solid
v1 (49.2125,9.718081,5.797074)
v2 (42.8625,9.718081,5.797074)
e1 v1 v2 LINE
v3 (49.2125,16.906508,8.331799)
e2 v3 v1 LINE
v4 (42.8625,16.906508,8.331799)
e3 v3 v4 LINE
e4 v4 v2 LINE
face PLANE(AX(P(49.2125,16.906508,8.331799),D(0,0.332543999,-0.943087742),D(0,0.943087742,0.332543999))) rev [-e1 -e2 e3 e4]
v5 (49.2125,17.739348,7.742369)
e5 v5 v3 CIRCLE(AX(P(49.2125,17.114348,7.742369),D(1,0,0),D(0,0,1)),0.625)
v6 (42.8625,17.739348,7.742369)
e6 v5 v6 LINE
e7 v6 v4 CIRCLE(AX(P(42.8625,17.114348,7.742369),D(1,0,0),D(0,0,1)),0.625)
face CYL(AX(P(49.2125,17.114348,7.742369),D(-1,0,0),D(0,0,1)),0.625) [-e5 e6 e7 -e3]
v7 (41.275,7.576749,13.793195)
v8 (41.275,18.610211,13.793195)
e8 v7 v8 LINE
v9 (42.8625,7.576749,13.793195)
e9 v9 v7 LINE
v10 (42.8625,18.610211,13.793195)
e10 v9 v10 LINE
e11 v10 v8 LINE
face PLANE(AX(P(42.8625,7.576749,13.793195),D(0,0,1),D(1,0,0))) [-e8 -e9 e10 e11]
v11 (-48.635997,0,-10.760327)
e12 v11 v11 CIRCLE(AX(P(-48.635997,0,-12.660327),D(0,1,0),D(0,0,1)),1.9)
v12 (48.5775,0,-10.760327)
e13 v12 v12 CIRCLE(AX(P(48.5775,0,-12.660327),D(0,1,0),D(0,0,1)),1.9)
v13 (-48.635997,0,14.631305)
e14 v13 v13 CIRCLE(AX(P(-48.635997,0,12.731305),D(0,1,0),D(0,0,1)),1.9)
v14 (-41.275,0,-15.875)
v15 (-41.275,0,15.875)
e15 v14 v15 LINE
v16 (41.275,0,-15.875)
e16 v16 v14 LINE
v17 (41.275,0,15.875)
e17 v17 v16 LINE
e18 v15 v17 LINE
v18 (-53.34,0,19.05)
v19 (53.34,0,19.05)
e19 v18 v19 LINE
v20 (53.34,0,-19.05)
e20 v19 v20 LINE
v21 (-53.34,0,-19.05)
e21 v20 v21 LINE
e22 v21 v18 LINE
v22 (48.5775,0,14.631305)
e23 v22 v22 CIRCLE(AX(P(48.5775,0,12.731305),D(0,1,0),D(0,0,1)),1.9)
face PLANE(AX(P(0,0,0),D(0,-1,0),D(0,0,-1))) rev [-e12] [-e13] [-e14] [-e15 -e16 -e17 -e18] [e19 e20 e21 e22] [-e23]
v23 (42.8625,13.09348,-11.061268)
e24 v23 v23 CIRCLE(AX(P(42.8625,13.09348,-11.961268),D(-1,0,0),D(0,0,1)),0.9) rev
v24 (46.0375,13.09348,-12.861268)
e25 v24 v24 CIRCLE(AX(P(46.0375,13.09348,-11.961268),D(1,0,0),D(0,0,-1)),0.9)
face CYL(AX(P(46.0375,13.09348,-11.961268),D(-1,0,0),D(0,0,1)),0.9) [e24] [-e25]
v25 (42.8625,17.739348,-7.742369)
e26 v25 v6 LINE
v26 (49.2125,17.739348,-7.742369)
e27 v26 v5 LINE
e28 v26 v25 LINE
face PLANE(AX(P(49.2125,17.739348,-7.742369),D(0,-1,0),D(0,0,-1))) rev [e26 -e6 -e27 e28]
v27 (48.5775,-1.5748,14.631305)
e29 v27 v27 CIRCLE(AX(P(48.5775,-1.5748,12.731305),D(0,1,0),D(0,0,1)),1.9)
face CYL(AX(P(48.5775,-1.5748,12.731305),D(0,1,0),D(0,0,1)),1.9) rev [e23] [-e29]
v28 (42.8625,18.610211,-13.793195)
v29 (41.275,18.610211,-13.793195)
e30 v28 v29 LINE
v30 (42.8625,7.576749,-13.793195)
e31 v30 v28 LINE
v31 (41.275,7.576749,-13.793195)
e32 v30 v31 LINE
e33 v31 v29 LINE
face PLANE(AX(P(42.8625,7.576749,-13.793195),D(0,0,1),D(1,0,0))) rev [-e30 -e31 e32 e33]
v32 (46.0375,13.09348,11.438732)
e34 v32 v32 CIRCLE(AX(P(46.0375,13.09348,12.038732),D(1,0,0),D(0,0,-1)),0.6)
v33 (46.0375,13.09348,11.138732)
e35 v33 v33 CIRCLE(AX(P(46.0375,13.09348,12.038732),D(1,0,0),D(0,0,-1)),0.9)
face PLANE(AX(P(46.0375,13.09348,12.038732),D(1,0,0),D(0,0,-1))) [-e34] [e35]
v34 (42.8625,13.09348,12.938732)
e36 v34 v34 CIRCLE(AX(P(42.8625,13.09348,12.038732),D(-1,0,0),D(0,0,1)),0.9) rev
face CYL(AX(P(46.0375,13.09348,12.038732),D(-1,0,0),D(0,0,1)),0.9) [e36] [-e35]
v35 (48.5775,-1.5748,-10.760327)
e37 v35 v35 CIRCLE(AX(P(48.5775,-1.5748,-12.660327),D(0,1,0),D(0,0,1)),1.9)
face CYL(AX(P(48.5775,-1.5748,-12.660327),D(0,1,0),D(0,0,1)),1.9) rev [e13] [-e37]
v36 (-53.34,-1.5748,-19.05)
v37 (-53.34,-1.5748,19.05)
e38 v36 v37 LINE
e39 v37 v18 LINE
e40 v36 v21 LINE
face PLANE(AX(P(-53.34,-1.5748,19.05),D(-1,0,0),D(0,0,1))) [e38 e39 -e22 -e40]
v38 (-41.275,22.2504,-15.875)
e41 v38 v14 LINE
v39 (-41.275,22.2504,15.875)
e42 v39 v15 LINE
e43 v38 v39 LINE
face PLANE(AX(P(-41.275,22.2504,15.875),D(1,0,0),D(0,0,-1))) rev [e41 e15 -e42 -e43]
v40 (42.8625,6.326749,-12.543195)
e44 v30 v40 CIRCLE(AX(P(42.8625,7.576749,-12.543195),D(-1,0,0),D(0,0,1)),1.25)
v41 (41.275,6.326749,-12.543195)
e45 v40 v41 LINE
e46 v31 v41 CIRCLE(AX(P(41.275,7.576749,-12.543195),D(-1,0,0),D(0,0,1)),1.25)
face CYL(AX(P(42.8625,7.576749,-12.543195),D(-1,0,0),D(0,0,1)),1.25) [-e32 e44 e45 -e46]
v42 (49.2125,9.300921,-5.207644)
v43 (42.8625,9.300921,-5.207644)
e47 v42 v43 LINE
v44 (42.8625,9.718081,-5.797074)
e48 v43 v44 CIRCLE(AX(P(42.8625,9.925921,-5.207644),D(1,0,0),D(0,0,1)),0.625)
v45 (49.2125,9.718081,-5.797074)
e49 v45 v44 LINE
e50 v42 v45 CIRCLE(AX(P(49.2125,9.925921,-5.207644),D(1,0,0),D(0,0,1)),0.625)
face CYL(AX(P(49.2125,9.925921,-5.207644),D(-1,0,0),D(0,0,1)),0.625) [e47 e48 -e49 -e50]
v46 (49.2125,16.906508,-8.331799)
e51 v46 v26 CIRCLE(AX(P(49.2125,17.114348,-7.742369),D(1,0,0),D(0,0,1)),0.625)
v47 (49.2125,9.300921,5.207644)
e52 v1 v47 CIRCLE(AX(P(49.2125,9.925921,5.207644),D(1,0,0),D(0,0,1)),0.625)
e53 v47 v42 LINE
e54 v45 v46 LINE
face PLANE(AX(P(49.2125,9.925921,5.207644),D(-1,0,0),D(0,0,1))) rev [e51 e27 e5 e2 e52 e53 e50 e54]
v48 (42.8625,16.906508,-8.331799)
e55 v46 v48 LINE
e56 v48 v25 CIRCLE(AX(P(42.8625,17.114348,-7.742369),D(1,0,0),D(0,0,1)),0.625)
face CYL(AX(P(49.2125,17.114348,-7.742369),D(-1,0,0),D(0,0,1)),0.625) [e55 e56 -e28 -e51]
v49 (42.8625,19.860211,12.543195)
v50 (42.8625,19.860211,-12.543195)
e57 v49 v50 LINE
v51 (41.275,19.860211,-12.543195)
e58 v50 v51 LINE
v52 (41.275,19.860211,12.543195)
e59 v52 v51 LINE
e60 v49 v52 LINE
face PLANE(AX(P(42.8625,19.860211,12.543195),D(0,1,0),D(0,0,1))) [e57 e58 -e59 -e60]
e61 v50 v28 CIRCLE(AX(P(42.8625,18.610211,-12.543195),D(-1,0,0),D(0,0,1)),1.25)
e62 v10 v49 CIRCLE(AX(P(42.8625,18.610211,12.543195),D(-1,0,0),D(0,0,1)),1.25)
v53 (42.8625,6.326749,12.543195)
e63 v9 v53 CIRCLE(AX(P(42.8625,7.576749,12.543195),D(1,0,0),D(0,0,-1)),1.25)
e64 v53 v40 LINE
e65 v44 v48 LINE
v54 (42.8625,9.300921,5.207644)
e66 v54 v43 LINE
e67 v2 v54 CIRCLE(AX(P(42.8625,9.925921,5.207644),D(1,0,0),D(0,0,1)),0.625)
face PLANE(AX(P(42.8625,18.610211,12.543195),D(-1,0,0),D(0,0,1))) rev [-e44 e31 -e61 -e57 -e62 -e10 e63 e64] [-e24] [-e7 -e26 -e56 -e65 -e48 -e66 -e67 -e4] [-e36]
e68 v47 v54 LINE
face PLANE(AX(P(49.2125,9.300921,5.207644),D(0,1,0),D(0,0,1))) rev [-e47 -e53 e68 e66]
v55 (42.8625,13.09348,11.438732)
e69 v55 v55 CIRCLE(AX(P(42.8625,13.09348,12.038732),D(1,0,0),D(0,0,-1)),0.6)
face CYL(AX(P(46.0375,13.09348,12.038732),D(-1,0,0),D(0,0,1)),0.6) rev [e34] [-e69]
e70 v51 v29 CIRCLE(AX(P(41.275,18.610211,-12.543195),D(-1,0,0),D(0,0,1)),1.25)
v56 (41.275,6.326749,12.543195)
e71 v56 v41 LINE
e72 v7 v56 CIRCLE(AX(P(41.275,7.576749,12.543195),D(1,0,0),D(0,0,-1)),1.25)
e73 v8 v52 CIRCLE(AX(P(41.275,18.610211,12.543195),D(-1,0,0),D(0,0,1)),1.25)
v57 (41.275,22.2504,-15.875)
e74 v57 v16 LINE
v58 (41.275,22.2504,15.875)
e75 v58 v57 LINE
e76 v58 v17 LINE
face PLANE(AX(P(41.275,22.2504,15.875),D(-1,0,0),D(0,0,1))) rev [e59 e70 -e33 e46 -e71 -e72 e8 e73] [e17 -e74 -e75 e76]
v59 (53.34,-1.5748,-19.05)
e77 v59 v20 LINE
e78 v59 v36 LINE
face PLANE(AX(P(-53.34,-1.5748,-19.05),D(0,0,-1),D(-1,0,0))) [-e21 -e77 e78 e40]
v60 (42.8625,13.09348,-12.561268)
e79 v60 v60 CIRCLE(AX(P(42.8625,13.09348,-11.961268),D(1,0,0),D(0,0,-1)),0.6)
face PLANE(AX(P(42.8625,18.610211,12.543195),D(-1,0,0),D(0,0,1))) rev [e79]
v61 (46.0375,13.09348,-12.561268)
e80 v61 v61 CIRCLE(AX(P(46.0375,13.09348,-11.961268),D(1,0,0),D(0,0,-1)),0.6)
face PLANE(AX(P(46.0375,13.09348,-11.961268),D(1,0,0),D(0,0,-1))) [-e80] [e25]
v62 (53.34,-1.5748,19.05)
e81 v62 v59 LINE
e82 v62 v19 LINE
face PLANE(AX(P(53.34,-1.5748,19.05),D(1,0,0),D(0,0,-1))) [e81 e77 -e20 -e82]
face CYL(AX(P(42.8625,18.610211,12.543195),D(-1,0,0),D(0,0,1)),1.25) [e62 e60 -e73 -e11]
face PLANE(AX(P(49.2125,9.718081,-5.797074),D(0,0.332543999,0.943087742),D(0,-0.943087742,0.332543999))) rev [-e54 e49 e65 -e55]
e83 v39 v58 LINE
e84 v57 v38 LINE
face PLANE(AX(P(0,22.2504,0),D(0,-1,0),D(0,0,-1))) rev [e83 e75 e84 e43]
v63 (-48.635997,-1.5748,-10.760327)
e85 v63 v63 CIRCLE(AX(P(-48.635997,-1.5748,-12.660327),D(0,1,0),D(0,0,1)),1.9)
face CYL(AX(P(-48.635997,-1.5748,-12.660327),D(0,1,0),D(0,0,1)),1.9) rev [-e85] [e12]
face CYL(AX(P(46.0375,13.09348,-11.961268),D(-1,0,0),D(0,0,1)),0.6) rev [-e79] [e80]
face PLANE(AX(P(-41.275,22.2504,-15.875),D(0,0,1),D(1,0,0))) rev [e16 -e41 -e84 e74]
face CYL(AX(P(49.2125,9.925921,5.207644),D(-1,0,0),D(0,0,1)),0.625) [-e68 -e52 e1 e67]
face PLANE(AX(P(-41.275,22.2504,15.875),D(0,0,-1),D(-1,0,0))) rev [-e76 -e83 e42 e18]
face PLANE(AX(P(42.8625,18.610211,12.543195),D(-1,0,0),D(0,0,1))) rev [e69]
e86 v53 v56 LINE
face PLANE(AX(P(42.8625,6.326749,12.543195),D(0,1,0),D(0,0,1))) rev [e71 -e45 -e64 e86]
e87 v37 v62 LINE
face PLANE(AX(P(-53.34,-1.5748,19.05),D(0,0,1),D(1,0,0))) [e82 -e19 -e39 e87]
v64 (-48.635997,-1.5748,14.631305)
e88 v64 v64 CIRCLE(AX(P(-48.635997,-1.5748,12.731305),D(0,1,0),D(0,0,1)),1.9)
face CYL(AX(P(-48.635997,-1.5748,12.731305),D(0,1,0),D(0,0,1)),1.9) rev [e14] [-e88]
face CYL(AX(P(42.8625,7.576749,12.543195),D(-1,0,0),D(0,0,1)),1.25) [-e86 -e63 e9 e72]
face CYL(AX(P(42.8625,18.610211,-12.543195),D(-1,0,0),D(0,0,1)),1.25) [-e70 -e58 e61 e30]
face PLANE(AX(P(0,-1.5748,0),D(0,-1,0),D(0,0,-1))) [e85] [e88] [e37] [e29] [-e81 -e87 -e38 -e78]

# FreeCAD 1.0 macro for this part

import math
import FreeCAD as App
import Part
import Sketcher
Q = App.Units.Quantity


def add_polygon(sketch, points):
    """Adds a closed chain of lines whose ends are joined by coincident constraints."""
    first, n = sketch.GeometryCount, len(points)
    for a, b in zip(points, points[1:] + points[:1]):
        sketch.addGeometry(Part.LineSegment(App.Vector(*a, 0), App.Vector(*b, 0)), False)
    for i in range(n):
        sketch.addConstraint(Sketcher.Constraint("Coincident", first + i, 2, first + (i + 1) % n, 1))

doc = App.newDocument("Part")
body = doc.addObject("PartDesign::Body", "Body")

sketch1 = body.newObject("Sketcher::SketchObject", "Sketch")
sketch1.AttachmentSupport = (doc.getObject("XZ_Plane"), [""])
sketch1.MapMode = "FlatFace"
add_polygon(sketch1, [(-53, -19), (-53, 19), (53, 19), (53, -19)])
sketch1.addConstraint([
    Sketcher.Constraint("Vertical", 0),
    Sketcher.Constraint("Horizontal", 1),
    Sketcher.Constraint("Vertical", 2),
    Sketcher.Constraint("Horizontal", 3),
    Sketcher.Constraint("Symmetric", 0, 2, 2, 2, -1, 1),
    Sketcher.Constraint("DistanceX", 1, 1, 1, 2, Q("4.2 in")),
    Sketcher.Constraint("DistanceY", 0, 1, 0, 2, Q("1.5 in")),
])
pad1 = body.newObject("PartDesign::Pad", "Pad")
pad1.Profile = sketch1
pad1.Length = Q("0.062 in")

sketch2 = body.newObject("Sketcher::SketchObject", "Sketch001")
sketch2.AttachmentSupport = (doc.getObject("XZ_Plane"), [""])
sketch2.MapMode = "FlatFace"
sketch2.addGeometry([
    Part.Circle(App.Vector(-48.6, -12.7, 0), App.Vector(0, 0, 1), 1.9),
    Part.Circle(App.Vector(-48.6, 12.7, 0), App.Vector(0, 0, 1), 1.9),
    Part.Circle(App.Vector(48.6, -12.7, 0), App.Vector(0, 0, 1), 1.9),
    Part.Circle(App.Vector(48.6, 12.7, 0), App.Vector(0, 0, 1), 1.9),
], False)
sketch2.addConstraint([
    Sketcher.Constraint("Equal", 0, 1),
    Sketcher.Constraint("Equal", 1, 2),
    Sketcher.Constraint("Equal", 2, 3),
    Sketcher.Constraint("Horizontal", 0, 3, 2, 3),
    Sketcher.Constraint("Horizontal", 1, 3, 3, 3),
    Sketcher.Constraint("Vertical", 0, 3, 1, 3),
    Sketcher.Constraint("Vertical", 2, 3, 3, 3),
    Sketcher.Constraint("Diameter", 0, 3.8),
    Sketcher.Constraint("DistanceX", -1, 1, 2, 3, Q("1.9125 in")),
    Sketcher.Constraint("DistanceY", 0, 3, 1, 3, 25.391632),
    Sketcher.Constraint("DistanceX", 0, 3, -1, 1, 48.635997),
    Sketcher.Constraint("DistanceY", 0, 3, -1, 1, 12.660327),
])
pocket1 = body.newObject("PartDesign::Pocket", "Pocket")
pocket1.Profile = sketch2
pocket1.Type = "ThroughAll"
pocket1.Reversed = True

sketch3 = body.newObject("Sketcher::SketchObject", "Sketch002")
sketch3.AttachmentSupport = (doc.getObject("XZ_Plane"), [""])
sketch3.MapMode = "FlatFace"
add_polygon(sketch3, [(-41, -16), (-41, 16), (41, 16), (41, -16)])
sketch3.addConstraint([
    Sketcher.Constraint("Vertical", 0),
    Sketcher.Constraint("Horizontal", 1),
    Sketcher.Constraint("Vertical", 2),
    Sketcher.Constraint("Horizontal", 3),
    Sketcher.Constraint("Symmetric", 0, 2, 2, 2, -1, 1),
    Sketcher.Constraint("DistanceX", 1, 1, 1, 2, Q("3.25 in")),
    Sketcher.Constraint("DistanceY", 0, 1, 0, 2, Q("1.25 in")),
])
pad2 = body.newObject("PartDesign::Pad", "Pad001")
pad2.Profile = sketch3
pad2.Length = Q("0.876 in")
pad2.Reversed = True

sketch4 = body.newObject("Sketcher::SketchObject", "Sketch003")
sketch4.AttachmentSupport = (doc.getObject("YZ_Plane"), [""])
sketch4.MapMode = "FlatFace"
sketch4.AttachmentOffset = App.Placement(App.Vector(0, 0, 1.625 * 25.4), App.Rotation())
sketch4.addGeometry([
    Part.LineSegment(App.Vector(6.3, 12.5, 0), App.Vector(6.3, -12.5, 0)),
    Part.ArcOfCircle(Part.Circle(App.Vector(7.6, -12.5, 0), App.Vector(0, 0, 1), 1.3), math.radians(-180), math.radians(-90)),
    Part.LineSegment(App.Vector(7.6, -13.8, 0), App.Vector(18.6, -13.8, 0)),
    Part.ArcOfCircle(Part.Circle(App.Vector(18.6, -12.5, 0), App.Vector(0, 0, 1), 1.3), math.radians(-90), math.radians(0)),
    Part.LineSegment(App.Vector(19.9, -12.5, 0), App.Vector(19.9, 12.5, 0)),
    Part.ArcOfCircle(Part.Circle(App.Vector(18.6, 12.5, 0), App.Vector(0, 0, 1), 1.3), math.radians(0), math.radians(90)),
    Part.LineSegment(App.Vector(18.6, 13.8, 0), App.Vector(7.6, 13.8, 0)),
    Part.ArcOfCircle(Part.Circle(App.Vector(7.6, 12.5, 0), App.Vector(0, 0, 1), 1.3), math.radians(90), math.radians(180)),
], False)
sketch4.addConstraint([
    Sketcher.Constraint("Tangent", 0, 2, 1, 1),
    Sketcher.Constraint("Tangent", 1, 2, 2, 1),
    Sketcher.Constraint("Tangent", 2, 2, 3, 1),
    Sketcher.Constraint("Tangent", 3, 2, 4, 1),
    Sketcher.Constraint("Tangent", 4, 2, 5, 1),
    Sketcher.Constraint("Tangent", 5, 2, 6, 1),
    Sketcher.Constraint("Tangent", 6, 2, 7, 1),
    Sketcher.Constraint("Tangent", 7, 2, 0, 1),
    Sketcher.Constraint("Vertical", 0),
    Sketcher.Constraint("Horizontal", 2),
    Sketcher.Constraint("Vertical", 4),
    Sketcher.Constraint("Horizontal", 6),
    Sketcher.Constraint("Equal", 1, 3),
    Sketcher.Constraint("Equal", 3, 5),
    Sketcher.Constraint("Equal", 5, 7),
    Sketcher.Constraint("Radius", 1, 1.25),
    Sketcher.Constraint("DistanceY", 0, 2, 0, 1, 25.08639),
    Sketcher.Constraint("DistanceX", 2, 1, 2, 2, 11.033462),
    Sketcher.Constraint("DistanceX", -1, 1, 1, 3, 7.576749),
    Sketcher.Constraint("DistanceY", 1, 3, -1, 1, 12.543195),
])
pad3 = body.newObject("PartDesign::Pad", "Pad002")
pad3.Profile = sketch4
pad3.Length = Q("0.0625 in")

sketch5 = body.newObject("Sketcher::SketchObject", "Sketch004")
sketch5.AttachmentSupport = (doc.getObject("YZ_Plane"), [""])
sketch5.MapMode = "FlatFace"
sketch5.AttachmentOffset = App.Placement(App.Vector(0, 0, 1.6875 * 25.4), App.Rotation())
sketch5.addGeometry([
    Part.Circle(App.Vector(13.1, -12, 0), App.Vector(0, 0, 1), 0.9),
    Part.Circle(App.Vector(13.1, -12, 0), App.Vector(0, 0, 1), 0.6),
    Part.Circle(App.Vector(13.1, 12, 0), App.Vector(0, 0, 1), 0.9),
    Part.Circle(App.Vector(13.1, 12, 0), App.Vector(0, 0, 1), 0.6),
], False)
sketch5.addConstraint([
    Sketcher.Constraint("Coincident", 1, 3, 0, 3),
    Sketcher.Constraint("Coincident", 3, 3, 2, 3),
    Sketcher.Constraint("Equal", 0, 2),
    Sketcher.Constraint("Equal", 1, 3),
    Sketcher.Constraint("Vertical", 1, 3, 2, 3),
    Sketcher.Constraint("Diameter", 0, 1.8),
    Sketcher.Constraint("Diameter", 1, 1.2),
    Sketcher.Constraint("DistanceY", 0, 3, 2, 3, 24.0),
    Sketcher.Constraint("DistanceX", -1, 1, 0, 3, 13.09348),
    Sketcher.Constraint("DistanceY", 0, 3, -1, 1, 11.961268),
])
pad4 = body.newObject("PartDesign::Pad", "Pad003")
pad4.Profile = sketch5
pad4.Length = Q("0.125 in")

sketch6 = body.newObject("Sketcher::SketchObject", "Sketch005")
sketch6.AttachmentSupport = (doc.getObject("YZ_Plane"), [""])
sketch6.MapMode = "FlatFace"
sketch6.AttachmentOffset = App.Placement(App.Vector(0, 0, 1.6875 * 25.4), App.Rotation())
sketch6.addGeometry([
    Part.LineSegment(App.Vector(16.9, 8.3, 0), App.Vector(9.7, 5.8, 0)),
    Part.ArcOfCircle(Part.Circle(App.Vector(9.9, 5.2, 0), App.Vector(0, 0, 1), 0.6), math.radians(109), math.radians(180)),
    Part.LineSegment(App.Vector(9.3, 5.2, 0), App.Vector(9.3, -5.2, 0)),
    Part.ArcOfCircle(Part.Circle(App.Vector(9.9, -5.2, 0), App.Vector(0, 0, 1), 0.6), math.radians(-180), math.radians(-109)),
    Part.LineSegment(App.Vector(9.7, -5.8, 0), App.Vector(16.9, -8.3, 0)),
    Part.ArcOfCircle(Part.Circle(App.Vector(17.1, -7.7, 0), App.Vector(0, 0, 1), 0.6), math.radians(-109), math.radians(0)),
    Part.LineSegment(App.Vector(17.7, -7.7, 0), App.Vector(17.7, 7.7, 0)),
    Part.ArcOfCircle(Part.Circle(App.Vector(17.1, 7.7, 0), App.Vector(0, 0, 1), 0.6), math.radians(0), math.radians(109)),
], False)
sketch6.addConstraint([
    Sketcher.Constraint("Tangent", 0, 2, 1, 1),
    Sketcher.Constraint("Tangent", 1, 2, 2, 1),
    Sketcher.Constraint("Tangent", 2, 2, 3, 1),
    Sketcher.Constraint("Tangent", 3, 2, 4, 1),
    Sketcher.Constraint("Tangent", 4, 2, 5, 1),
    Sketcher.Constraint("Tangent", 5, 2, 6, 1),
    Sketcher.Constraint("Tangent", 6, 2, 7, 1),
    Sketcher.Constraint("Tangent", 7, 2, 0, 1),
    Sketcher.Constraint("Vertical", 2),
    Sketcher.Constraint("Vertical", 6),
    Sketcher.Constraint("Equal", 1, 3),
    Sketcher.Constraint("Equal", 3, 5),
    Sketcher.Constraint("Equal", 5, 7),
    Sketcher.Constraint("Symmetric", 0, 2, 3, 2, -1),
    Sketcher.Constraint("Radius", 1, 0.625),
    Sketcher.Constraint("DistanceY", 6, 1, 6, 2, 15.484738),
    Sketcher.Constraint("DistanceY", 4, 2, -1, 1, 8.331799),
    Sketcher.Constraint("DistanceY", 2, 2, 2, 1, 10.415288),
    Sketcher.Constraint("DistanceX", -1, 1, 1, 3, 9.925921),
])
pad5 = body.newObject("PartDesign::Pad", "Pad004")
pad5.Profile = sketch6
pad5.Length = Q("0.25 in")

doc.recompute()
